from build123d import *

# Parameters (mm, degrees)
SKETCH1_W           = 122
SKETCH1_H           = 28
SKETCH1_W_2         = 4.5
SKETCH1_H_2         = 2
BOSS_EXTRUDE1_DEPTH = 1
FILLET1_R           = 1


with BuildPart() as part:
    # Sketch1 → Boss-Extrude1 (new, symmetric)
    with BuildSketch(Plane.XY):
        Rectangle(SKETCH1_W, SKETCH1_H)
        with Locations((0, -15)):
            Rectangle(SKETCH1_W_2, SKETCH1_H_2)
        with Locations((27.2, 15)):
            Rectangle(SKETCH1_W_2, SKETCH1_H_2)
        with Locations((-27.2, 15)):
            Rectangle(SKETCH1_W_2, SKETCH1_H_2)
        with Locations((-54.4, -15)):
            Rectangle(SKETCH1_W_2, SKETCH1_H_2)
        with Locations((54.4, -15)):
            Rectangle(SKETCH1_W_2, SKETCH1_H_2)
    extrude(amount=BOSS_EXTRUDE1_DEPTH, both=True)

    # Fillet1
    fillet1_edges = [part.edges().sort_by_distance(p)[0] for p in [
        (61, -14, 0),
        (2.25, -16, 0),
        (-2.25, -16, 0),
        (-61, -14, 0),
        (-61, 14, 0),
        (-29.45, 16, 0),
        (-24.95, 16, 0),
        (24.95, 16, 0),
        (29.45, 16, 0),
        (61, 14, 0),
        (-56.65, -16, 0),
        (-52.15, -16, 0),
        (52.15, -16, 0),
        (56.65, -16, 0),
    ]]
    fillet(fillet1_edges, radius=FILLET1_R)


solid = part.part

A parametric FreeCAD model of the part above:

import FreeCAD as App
import Part
import Sketcher

V = App.Vector
Q = App.Units.Quantity


def edges_at(feature, points):
    """Names of the edges that pass closest to the given points."""
    edges = feature.Shape.Edges
    near = lambda p: min(range(len(edges)), key=lambda i: edges[i].distToShape(Part.Vertex(*p))[0])
    return sorted({f"Edge{near(p) + 1}" for p in points})


def add_polygon(sketch, points):
    """Adds a closed chain of lines whose ends are joined by coincident constraints."""
    first, n = sketch.GeometryCount, len(points)
    for a, b in zip(points, points[1:] + points[:1]):
        sketch.addGeometry(Part.LineSegment(App.Vector(*a, 0), App.Vector(*b, 0)), False)
    for i in range(n):
        sketch.addConstraint(Sketcher.Constraint("Coincident", first + i, 2, first + (i + 1) % n, 1))

doc = App.newDocument("Part")
body = doc.addObject("PartDesign::Body", "Body")

# Sketch on XY plane
sketch1 = body.newObject("Sketcher::SketchObject", "Sketch")
sketch1.AttachmentSupport = (doc.getObject("XY_Plane"), [""])
sketch1.MapMode = "FlatFace"
add_polygon(sketch1, [(-61, 14), (-61, -14), (-56.6, -14), (-56.6, -16), (-52.1, -16), (-52.1, -14), (-2.2, -14), (-2.2, -16), (2.2, -16), (2.2, -14), (52.1, -14), (52.1, -16), (56.6, -16), (56.6, -14), (61, -14), (61, 14), (29.4, 14), (29.4, 16), (24.9, 16), (24.9, 14), (-24.9, 14), (-24.9, 16), (-29.4, 16), (-29.4, 14)])  # lines 0-23
sketch1.addConstraint(Sketcher.Constraint("Vertical", 0))
sketch1.addConstraint(Sketcher.Constraint("Horizontal", 1))
sketch1.addConstraint(Sketcher.Constraint("Vertical", 2))
sketch1.addConstraint(Sketcher.Constraint("Horizontal", 3))
sketch1.addConstraint(Sketcher.Constraint("Vertical", 4))
sketch1.addConstraint(Sketcher.Constraint("Horizontal", 5))
sketch1.addConstraint(Sketcher.Constraint("Vertical", 6))
sketch1.addConstraint(Sketcher.Constraint("Horizontal", 7))
sketch1.addConstraint(Sketcher.Constraint("Vertical", 8))
sketch1.addConstraint(Sketcher.Constraint("Horizontal", 9))
sketch1.addConstraint(Sketcher.Constraint("Vertical", 10))
sketch1.addConstraint(Sketcher.Constraint("Horizontal", 11))
sketch1.addConstraint(Sketcher.Constraint("Vertical", 12))
sketch1.addConstraint(Sketcher.Constraint("Horizontal", 13))
sketch1.addConstraint(Sketcher.Constraint("Vertical", 14))
sketch1.addConstraint(Sketcher.Constraint("Horizontal", 15))
sketch1.addConstraint(Sketcher.Constraint("Vertical", 16))
sketch1.addConstraint(Sketcher.Constraint("Horizontal", 17))
sketch1.addConstraint(Sketcher.Constraint("Vertical", 18))
sketch1.addConstraint(Sketcher.Constraint("Horizontal", 19))
sketch1.addConstraint(Sketcher.Constraint("Vertical", 20))
sketch1.addConstraint(Sketcher.Constraint("Horizontal", 21))
sketch1.addConstraint(Sketcher.Constraint("Vertical", 22))
sketch1.addConstraint(Sketcher.Constraint("Horizontal", 23))
sketch1.addConstraint(Sketcher.Constraint("Symmetric", 0, 2, 14, 2, -1, 1))
sketch1.addConstraint(Sketcher.Constraint("Symmetric", 5, 2, 8, 2, -2))
sketch1.addConstraint(Sketcher.Constraint("Symmetric", 3, 2, 10, 2, -2))
sketch1.addConstraint(Sketcher.Constraint("Symmetric", 1, 2, 12, 2, -2))
sketch1.addConstraint(Sketcher.Constraint("Symmetric", 17, 2, 20, 2, -2))
sketch1.addConstraint(Sketcher.Constraint("Symmetric", 15, 2, 22, 2, -2))
sketch1.addConstraint(Sketcher.Constraint("Horizontal", 1, 2, 4, 2))
sketch1.addConstraint(Sketcher.Constraint("Horizontal", 3, 2, 6, 2))
sketch1.addConstraint(Sketcher.Constraint("Horizontal", 15, 2, 18, 2))
sketch1.addConstraint(Sketcher.Constraint("Equal", 3, 7))
sketch1.addConstraint(Sketcher.Constraint("Equal", 11, 17))
sketch1.addConstraint(Sketcher.Constraint("Equal", 9, 19))
sketch1.addConstraint(Sketcher.Constraint("Equal", 12, 16))
sketch1.addConstraint(Sketcher.Constraint("DistanceY", 0, 2, 0, 1, Q("28 mm")))
sketch1.addConstraint(Sketcher.Constraint("DistanceY", 2, 2, 2, 1, Q("2 mm")))
sketch1.addConstraint(Sketcher.Constraint("DistanceX", 3, 1, 3, 2, Q("4.5 mm")))
sketch1.addConstraint(Sketcher.Constraint("DistanceX", 5, 1, 5, 2, Q("49.9 mm")))
sketch1.addConstraint(Sketcher.Constraint("DistanceX", 0, 2, -1, 1, Q("61 mm")))
pad1 = body.newObject("PartDesign::Pad", "Pad")
pad1.Profile = sketch1
pad1.Length = 2
pad1.Midplane = True
doc.recompute()

fillet = body.newObject("PartDesign::Fillet", "Fillet")
fillet.Base = (pad1, edges_at(pad1, [
    (61, -14, 0),
    (2.25, -16, 0),
    (-2.25, -16, 0),
    (-61, -14, 0),
    (-61, 14, 0),
    (-29.45, 16, 0),
    (-24.95, 16, 0),
    (24.95, 16, 0),
    (29.45, 16, 0),
    (61, 14, 0),
    (-56.65, -16, 0),
    (-52.15, -16, 0),
    (52.15, -16, 0),
    (56.65, -16, 0),
]))
fillet.Radius = 1

doc.recompute()
